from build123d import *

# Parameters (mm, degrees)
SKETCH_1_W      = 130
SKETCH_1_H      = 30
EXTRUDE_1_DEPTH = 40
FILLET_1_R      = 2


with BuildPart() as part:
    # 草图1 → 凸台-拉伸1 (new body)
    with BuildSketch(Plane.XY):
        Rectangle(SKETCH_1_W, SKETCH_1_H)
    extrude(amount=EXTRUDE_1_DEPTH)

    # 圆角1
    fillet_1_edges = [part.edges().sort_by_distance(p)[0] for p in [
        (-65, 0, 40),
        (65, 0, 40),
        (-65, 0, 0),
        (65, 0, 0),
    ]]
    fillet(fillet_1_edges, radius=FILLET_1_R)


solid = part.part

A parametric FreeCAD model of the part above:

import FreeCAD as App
import Part
import Sketcher


def edges_at(feature, points):
    """Names of the edges that pass closest to the given points."""
    edges = feature.Shape.Edges
    near = lambda p: min(range(len(edges)), key=lambda i: edges[i].distToShape(Part.Vertex(*p))[0])
    return sorted({f"Edge{near(p) + 1}" for p in points})


def add_polygon(sketch, points):
    """Adds a closed chain of lines whose ends are joined by coincident constraints."""
    first, n = sketch.GeometryCount, len(points)
    for a, b in zip(points, points[1:] + points[:1]):
        sketch.addGeometry(Part.LineSegment(App.Vector(*a, 0), App.Vector(*b, 0)), False)
    for i in range(n):
        sketch.addConstraint(Sketcher.Constraint("Coincident", first + i, 2, first + (i + 1) % n, 1))

doc = App.newDocument("Part")
params = doc.addObject("Spreadsheet::Sheet", "Params")
for row, (alias, value) in enumerate([
    ("sketch1_width", "130 mm"),
    ("sketch1_height", "30 mm"),
    ("pad1_length", "40 mm"),
    ("fillet_radius", "2 mm"),
], start=1):
    params.set(f"A{row}", alias)
    params.set(f"B{row}", "=" + value)
    params.setAlias(f"B{row}", alias)

body = doc.addObject("PartDesign::Body", "Body")

sketch1 = body.newObject("Sketcher::SketchObject", "Sketch")
sketch1.AttachmentSupport = (doc.getObject("XY_Plane"), [""])
sketch1.MapMode = "FlatFace"
add_polygon(sketch1, [(-65, 15), (-65, -15), (65, -15), (65, 15)])
sketch1.addConstraint(Sketcher.Constraint("Vertical", 0))
sketch1.addConstraint(Sketcher.Constraint("Horizontal", 1))
sketch1.addConstraint(Sketcher.Constraint("Vertical", 2))
sketch1.addConstraint(Sketcher.Constraint("Horizontal", 3))
sketch1.addConstraint(Sketcher.Constraint("Symmetric", 0, 2, 2, 2, -1, 1))
sketch1.addConstraint(Sketcher.Constraint("DistanceX", 1, 1, 1, 2, 130.0))
sketch1.addConstraint(Sketcher.Constraint("DistanceY", 0, 2, 0, 1, 30.0))
sketch1.setExpression("Constraints[9]", "Params.sketch1_width")
sketch1.setExpression("Constraints[10]", "Params.sketch1_height")
pad1 = body.newObject("PartDesign::Pad", "Pad")
pad1.Profile = sketch1
pad1.setExpression("Length", "Params.pad1_length")
doc.recompute()

fillet = body.newObject("PartDesign::Fillet", "Fillet")
fillet.Base = (pad1, edges_at(pad1, [
    (-65, 0, 40),
    (65, 0, 40),
    (-65, 0, 0),
    (65, 0, 0),
]))
fillet.setExpression("Radius", "Params.fillet_radius")

doc.recompute()
